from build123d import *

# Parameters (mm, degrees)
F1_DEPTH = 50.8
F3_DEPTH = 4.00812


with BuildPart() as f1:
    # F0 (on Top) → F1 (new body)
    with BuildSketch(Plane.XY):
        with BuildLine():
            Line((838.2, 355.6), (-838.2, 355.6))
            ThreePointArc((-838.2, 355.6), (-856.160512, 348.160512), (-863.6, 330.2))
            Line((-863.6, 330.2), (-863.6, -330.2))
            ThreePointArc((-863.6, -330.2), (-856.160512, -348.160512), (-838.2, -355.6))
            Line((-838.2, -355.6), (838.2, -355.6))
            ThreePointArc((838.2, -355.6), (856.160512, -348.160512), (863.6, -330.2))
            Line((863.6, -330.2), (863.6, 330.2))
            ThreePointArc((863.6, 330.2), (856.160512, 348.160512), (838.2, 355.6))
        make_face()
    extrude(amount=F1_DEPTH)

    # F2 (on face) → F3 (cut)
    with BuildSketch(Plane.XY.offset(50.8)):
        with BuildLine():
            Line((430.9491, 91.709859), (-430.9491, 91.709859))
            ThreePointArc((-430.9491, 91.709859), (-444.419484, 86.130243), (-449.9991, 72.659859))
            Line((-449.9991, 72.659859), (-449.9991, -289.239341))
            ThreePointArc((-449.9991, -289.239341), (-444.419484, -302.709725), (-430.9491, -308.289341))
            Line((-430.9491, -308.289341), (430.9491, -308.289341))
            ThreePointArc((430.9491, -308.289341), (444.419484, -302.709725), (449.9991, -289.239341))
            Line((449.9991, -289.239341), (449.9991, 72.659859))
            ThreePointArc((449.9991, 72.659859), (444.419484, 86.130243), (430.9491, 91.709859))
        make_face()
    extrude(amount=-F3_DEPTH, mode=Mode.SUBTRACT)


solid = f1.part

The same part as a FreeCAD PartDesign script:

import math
import FreeCAD as App
import Part
import Sketcher

V = App.Vector
Q = App.Units.Quantity

doc = App.newDocument("Part")
body = doc.addObject("PartDesign::Body", "Body")

# Sketch on XY plane
sketch1 = body.newObject("Sketcher::SketchObject", "Sketch")
sketch1.AttachmentSupport = (doc.getObject("XY_Plane"), [""])
sketch1.MapMode = "FlatFace"
sketch1.addGeometry(Part.LineSegment(V(838, 356, 0), V(-838, 356, 0)), False)
sketch1.addGeometry(Part.ArcOfCircle(Part.Circle(V(-838, 330, 0), V(0, 0, 1), 25), math.radians(90), math.radians(180)), False)
sketch1.addGeometry(Part.LineSegment(V(-864, 330, 0), V(-864, -330, 0)), False)
sketch1.addGeometry(Part.ArcOfCircle(Part.Circle(V(-838, -330, 0), V(0, 0, 1), 25), math.radians(-180), math.radians(-90)), False)
sketch1.addGeometry(Part.LineSegment(V(-838, -356, 0), V(838, -356, 0)), False)
sketch1.addGeometry(Part.ArcOfCircle(Part.Circle(V(838, -330, 0), V(0, 0, 1), 25), math.radians(-90), math.radians(0)), False)
sketch1.addGeometry(Part.LineSegment(V(864, -330, 0), V(864, 330, 0)), False)
sketch1.addGeometry(Part.ArcOfCircle(Part.Circle(V(838, 330, 0), V(0, 0, 1), 25), math.radians(0), math.radians(90)), False)
sketch1.addConstraint(Sketcher.Constraint("Tangent", 0, 2, 1, 1))
sketch1.addConstraint(Sketcher.Constraint("Tangent", 1, 2, 2, 1))
sketch1.addConstraint(Sketcher.Constraint("Tangent", 2, 2, 3, 1))
sketch1.addConstraint(Sketcher.Constraint("Tangent", 3, 2, 4, 1))
sketch1.addConstraint(Sketcher.Constraint("Tangent", 4, 2, 5, 1))
sketch1.addConstraint(Sketcher.Constraint("Tangent", 5, 2, 6, 1))
sketch1.addConstraint(Sketcher.Constraint("Tangent", 6, 2, 7, 1))
sketch1.addConstraint(Sketcher.Constraint("Tangent", 7, 2, 0, 1))
sketch1.addConstraint(Sketcher.Constraint("Horizontal", 0))
sketch1.addConstraint(Sketcher.Constraint("Vertical", 2))
sketch1.addConstraint(Sketcher.Constraint("Horizontal", 4))
sketch1.addConstraint(Sketcher.Constraint("Vertical", 6))
sketch1.addConstraint(Sketcher.Constraint("Equal", 1, 3))
sketch1.addConstraint(Sketcher.Constraint("Equal", 3, 5))
sketch1.addConstraint(Sketcher.Constraint("Equal", 5, 7))
sketch1.addConstraint(Sketcher.Constraint("Symmetric", 1, 3, 5, 3, -1, 1))
sketch1.addConstraint(Sketcher.Constraint("Radius", 1, Q("1 in")))
sketch1.addConstraint(Sketcher.Constraint("DistanceX", 0, 2, 0, 1, Q("66 in")))
sketch1.addConstraint(Sketcher.Constraint("DistanceY", 2, 2, 2, 1, Q("26 in")))
pad1 = body.newObject("PartDesign::Pad", "Pad")
pad1.Profile = sketch1
pad1.Length = Q("2 in")

# Sketch on XY plane
sketch2 = body.newObject("Sketcher::SketchObject", "Sketch001")
sketch2.AttachmentSupport = (doc.getObject("XY_Plane"), [""])
sketch2.MapMode = "FlatFace"
sketch2.AttachmentOffset = App.Placement(V(0, 0, 2 * 25.4), App.Rotation())
sketch2.addGeometry(Part.LineSegment(V(431, 92, 0), V(-431, 92, 0)), False)
sketch2.addGeometry(Part.ArcOfCircle(Part.Circle(V(-431, 73, 0), V(0, 0, 1), 19), math.radians(90), math.radians(180)), False)
sketch2.addGeometry(Part.LineSegment(V(-450, 73, 0), V(-450, -289, 0)), False)
sketch2.addGeometry(Part.ArcOfCircle(Part.Circle(V(-431, -289, 0), V(0, 0, 1), 19), math.radians(-180), math.radians(-90)), False)
sketch2.addGeometry(Part.LineSegment(V(-431, -308, 0), V(431, -308, 0)), False)
sketch2.addGeometry(Part.ArcOfCircle(Part.Circle(V(431, -289, 0), V(0, 0, 1), 19), math.radians(-90), math.radians(0)), False)
sketch2.addGeometry(Part.LineSegment(V(450, -289, 0), V(450, 73, 0)), False)
sketch2.addGeometry(Part.ArcOfCircle(Part.Circle(V(431, 73, 0), V(0, 0, 1), 19), math.radians(0), math.radians(90)), False)
sketch2.addConstraint(Sketcher.Constraint("Tangent", 0, 2, 1, 1))
sketch2.addConstraint(Sketcher.Constraint("Tangent", 1, 2, 2, 1))
sketch2.addConstraint(Sketcher.Constraint("Tangent", 2, 2, 3, 1))
sketch2.addConstraint(Sketcher.Constraint("Tangent", 3, 2, 4, 1))
sketch2.addConstraint(Sketcher.Constraint("Tangent", 4, 2, 5, 1))
sketch2.addConstraint(Sketcher.Constraint("Tangent", 5, 2, 6, 1))
sketch2.addConstraint(Sketcher.Constraint("Tangent", 6, 2, 7, 1))
sketch2.addConstraint(Sketcher.Constraint("Tangent", 7, 2, 0, 1))
sketch2.addConstraint(Sketcher.Constraint("Horizontal", 0))
sketch2.addConstraint(Sketcher.Constraint("Vertical", 2))
sketch2.addConstraint(Sketcher.Constraint("Horizontal", 4))
sketch2.addConstraint(Sketcher.Constraint("Vertical", 6))
sketch2.addConstraint(Sketcher.Constraint("Equal", 1, 3))
sketch2.addConstraint(Sketcher.Constraint("Equal", 3, 5))
sketch2.addConstraint(Sketcher.Constraint("Equal", 5, 7))
sketch2.addConstraint(Sketcher.Constraint("Radius", 1, Q("0.75 in")))
sketch2.addConstraint(Sketcher.Constraint("DistanceX", 0, 2, 0, 1, Q("33.933 in")))
sketch2.addConstraint(Sketcher.Constraint("DistanceY", 2, 2, 2, 1, Q("14.248 in")))
sketch2.addConstraint(Sketcher.Constraint("DistanceX", 1, 3, -1, 1, Q("16.9665 in")))
sketch2.addConstraint(Sketcher.Constraint("DistanceY", -1, 1, 1, 3, Q("72.659858 mm")))
pocket1 = body.newObject("PartDesign::Pocket", "Pocket")
pocket1.Profile = sketch2
pocket1.Length = Q("0.1578 in")

doc.recompute()
